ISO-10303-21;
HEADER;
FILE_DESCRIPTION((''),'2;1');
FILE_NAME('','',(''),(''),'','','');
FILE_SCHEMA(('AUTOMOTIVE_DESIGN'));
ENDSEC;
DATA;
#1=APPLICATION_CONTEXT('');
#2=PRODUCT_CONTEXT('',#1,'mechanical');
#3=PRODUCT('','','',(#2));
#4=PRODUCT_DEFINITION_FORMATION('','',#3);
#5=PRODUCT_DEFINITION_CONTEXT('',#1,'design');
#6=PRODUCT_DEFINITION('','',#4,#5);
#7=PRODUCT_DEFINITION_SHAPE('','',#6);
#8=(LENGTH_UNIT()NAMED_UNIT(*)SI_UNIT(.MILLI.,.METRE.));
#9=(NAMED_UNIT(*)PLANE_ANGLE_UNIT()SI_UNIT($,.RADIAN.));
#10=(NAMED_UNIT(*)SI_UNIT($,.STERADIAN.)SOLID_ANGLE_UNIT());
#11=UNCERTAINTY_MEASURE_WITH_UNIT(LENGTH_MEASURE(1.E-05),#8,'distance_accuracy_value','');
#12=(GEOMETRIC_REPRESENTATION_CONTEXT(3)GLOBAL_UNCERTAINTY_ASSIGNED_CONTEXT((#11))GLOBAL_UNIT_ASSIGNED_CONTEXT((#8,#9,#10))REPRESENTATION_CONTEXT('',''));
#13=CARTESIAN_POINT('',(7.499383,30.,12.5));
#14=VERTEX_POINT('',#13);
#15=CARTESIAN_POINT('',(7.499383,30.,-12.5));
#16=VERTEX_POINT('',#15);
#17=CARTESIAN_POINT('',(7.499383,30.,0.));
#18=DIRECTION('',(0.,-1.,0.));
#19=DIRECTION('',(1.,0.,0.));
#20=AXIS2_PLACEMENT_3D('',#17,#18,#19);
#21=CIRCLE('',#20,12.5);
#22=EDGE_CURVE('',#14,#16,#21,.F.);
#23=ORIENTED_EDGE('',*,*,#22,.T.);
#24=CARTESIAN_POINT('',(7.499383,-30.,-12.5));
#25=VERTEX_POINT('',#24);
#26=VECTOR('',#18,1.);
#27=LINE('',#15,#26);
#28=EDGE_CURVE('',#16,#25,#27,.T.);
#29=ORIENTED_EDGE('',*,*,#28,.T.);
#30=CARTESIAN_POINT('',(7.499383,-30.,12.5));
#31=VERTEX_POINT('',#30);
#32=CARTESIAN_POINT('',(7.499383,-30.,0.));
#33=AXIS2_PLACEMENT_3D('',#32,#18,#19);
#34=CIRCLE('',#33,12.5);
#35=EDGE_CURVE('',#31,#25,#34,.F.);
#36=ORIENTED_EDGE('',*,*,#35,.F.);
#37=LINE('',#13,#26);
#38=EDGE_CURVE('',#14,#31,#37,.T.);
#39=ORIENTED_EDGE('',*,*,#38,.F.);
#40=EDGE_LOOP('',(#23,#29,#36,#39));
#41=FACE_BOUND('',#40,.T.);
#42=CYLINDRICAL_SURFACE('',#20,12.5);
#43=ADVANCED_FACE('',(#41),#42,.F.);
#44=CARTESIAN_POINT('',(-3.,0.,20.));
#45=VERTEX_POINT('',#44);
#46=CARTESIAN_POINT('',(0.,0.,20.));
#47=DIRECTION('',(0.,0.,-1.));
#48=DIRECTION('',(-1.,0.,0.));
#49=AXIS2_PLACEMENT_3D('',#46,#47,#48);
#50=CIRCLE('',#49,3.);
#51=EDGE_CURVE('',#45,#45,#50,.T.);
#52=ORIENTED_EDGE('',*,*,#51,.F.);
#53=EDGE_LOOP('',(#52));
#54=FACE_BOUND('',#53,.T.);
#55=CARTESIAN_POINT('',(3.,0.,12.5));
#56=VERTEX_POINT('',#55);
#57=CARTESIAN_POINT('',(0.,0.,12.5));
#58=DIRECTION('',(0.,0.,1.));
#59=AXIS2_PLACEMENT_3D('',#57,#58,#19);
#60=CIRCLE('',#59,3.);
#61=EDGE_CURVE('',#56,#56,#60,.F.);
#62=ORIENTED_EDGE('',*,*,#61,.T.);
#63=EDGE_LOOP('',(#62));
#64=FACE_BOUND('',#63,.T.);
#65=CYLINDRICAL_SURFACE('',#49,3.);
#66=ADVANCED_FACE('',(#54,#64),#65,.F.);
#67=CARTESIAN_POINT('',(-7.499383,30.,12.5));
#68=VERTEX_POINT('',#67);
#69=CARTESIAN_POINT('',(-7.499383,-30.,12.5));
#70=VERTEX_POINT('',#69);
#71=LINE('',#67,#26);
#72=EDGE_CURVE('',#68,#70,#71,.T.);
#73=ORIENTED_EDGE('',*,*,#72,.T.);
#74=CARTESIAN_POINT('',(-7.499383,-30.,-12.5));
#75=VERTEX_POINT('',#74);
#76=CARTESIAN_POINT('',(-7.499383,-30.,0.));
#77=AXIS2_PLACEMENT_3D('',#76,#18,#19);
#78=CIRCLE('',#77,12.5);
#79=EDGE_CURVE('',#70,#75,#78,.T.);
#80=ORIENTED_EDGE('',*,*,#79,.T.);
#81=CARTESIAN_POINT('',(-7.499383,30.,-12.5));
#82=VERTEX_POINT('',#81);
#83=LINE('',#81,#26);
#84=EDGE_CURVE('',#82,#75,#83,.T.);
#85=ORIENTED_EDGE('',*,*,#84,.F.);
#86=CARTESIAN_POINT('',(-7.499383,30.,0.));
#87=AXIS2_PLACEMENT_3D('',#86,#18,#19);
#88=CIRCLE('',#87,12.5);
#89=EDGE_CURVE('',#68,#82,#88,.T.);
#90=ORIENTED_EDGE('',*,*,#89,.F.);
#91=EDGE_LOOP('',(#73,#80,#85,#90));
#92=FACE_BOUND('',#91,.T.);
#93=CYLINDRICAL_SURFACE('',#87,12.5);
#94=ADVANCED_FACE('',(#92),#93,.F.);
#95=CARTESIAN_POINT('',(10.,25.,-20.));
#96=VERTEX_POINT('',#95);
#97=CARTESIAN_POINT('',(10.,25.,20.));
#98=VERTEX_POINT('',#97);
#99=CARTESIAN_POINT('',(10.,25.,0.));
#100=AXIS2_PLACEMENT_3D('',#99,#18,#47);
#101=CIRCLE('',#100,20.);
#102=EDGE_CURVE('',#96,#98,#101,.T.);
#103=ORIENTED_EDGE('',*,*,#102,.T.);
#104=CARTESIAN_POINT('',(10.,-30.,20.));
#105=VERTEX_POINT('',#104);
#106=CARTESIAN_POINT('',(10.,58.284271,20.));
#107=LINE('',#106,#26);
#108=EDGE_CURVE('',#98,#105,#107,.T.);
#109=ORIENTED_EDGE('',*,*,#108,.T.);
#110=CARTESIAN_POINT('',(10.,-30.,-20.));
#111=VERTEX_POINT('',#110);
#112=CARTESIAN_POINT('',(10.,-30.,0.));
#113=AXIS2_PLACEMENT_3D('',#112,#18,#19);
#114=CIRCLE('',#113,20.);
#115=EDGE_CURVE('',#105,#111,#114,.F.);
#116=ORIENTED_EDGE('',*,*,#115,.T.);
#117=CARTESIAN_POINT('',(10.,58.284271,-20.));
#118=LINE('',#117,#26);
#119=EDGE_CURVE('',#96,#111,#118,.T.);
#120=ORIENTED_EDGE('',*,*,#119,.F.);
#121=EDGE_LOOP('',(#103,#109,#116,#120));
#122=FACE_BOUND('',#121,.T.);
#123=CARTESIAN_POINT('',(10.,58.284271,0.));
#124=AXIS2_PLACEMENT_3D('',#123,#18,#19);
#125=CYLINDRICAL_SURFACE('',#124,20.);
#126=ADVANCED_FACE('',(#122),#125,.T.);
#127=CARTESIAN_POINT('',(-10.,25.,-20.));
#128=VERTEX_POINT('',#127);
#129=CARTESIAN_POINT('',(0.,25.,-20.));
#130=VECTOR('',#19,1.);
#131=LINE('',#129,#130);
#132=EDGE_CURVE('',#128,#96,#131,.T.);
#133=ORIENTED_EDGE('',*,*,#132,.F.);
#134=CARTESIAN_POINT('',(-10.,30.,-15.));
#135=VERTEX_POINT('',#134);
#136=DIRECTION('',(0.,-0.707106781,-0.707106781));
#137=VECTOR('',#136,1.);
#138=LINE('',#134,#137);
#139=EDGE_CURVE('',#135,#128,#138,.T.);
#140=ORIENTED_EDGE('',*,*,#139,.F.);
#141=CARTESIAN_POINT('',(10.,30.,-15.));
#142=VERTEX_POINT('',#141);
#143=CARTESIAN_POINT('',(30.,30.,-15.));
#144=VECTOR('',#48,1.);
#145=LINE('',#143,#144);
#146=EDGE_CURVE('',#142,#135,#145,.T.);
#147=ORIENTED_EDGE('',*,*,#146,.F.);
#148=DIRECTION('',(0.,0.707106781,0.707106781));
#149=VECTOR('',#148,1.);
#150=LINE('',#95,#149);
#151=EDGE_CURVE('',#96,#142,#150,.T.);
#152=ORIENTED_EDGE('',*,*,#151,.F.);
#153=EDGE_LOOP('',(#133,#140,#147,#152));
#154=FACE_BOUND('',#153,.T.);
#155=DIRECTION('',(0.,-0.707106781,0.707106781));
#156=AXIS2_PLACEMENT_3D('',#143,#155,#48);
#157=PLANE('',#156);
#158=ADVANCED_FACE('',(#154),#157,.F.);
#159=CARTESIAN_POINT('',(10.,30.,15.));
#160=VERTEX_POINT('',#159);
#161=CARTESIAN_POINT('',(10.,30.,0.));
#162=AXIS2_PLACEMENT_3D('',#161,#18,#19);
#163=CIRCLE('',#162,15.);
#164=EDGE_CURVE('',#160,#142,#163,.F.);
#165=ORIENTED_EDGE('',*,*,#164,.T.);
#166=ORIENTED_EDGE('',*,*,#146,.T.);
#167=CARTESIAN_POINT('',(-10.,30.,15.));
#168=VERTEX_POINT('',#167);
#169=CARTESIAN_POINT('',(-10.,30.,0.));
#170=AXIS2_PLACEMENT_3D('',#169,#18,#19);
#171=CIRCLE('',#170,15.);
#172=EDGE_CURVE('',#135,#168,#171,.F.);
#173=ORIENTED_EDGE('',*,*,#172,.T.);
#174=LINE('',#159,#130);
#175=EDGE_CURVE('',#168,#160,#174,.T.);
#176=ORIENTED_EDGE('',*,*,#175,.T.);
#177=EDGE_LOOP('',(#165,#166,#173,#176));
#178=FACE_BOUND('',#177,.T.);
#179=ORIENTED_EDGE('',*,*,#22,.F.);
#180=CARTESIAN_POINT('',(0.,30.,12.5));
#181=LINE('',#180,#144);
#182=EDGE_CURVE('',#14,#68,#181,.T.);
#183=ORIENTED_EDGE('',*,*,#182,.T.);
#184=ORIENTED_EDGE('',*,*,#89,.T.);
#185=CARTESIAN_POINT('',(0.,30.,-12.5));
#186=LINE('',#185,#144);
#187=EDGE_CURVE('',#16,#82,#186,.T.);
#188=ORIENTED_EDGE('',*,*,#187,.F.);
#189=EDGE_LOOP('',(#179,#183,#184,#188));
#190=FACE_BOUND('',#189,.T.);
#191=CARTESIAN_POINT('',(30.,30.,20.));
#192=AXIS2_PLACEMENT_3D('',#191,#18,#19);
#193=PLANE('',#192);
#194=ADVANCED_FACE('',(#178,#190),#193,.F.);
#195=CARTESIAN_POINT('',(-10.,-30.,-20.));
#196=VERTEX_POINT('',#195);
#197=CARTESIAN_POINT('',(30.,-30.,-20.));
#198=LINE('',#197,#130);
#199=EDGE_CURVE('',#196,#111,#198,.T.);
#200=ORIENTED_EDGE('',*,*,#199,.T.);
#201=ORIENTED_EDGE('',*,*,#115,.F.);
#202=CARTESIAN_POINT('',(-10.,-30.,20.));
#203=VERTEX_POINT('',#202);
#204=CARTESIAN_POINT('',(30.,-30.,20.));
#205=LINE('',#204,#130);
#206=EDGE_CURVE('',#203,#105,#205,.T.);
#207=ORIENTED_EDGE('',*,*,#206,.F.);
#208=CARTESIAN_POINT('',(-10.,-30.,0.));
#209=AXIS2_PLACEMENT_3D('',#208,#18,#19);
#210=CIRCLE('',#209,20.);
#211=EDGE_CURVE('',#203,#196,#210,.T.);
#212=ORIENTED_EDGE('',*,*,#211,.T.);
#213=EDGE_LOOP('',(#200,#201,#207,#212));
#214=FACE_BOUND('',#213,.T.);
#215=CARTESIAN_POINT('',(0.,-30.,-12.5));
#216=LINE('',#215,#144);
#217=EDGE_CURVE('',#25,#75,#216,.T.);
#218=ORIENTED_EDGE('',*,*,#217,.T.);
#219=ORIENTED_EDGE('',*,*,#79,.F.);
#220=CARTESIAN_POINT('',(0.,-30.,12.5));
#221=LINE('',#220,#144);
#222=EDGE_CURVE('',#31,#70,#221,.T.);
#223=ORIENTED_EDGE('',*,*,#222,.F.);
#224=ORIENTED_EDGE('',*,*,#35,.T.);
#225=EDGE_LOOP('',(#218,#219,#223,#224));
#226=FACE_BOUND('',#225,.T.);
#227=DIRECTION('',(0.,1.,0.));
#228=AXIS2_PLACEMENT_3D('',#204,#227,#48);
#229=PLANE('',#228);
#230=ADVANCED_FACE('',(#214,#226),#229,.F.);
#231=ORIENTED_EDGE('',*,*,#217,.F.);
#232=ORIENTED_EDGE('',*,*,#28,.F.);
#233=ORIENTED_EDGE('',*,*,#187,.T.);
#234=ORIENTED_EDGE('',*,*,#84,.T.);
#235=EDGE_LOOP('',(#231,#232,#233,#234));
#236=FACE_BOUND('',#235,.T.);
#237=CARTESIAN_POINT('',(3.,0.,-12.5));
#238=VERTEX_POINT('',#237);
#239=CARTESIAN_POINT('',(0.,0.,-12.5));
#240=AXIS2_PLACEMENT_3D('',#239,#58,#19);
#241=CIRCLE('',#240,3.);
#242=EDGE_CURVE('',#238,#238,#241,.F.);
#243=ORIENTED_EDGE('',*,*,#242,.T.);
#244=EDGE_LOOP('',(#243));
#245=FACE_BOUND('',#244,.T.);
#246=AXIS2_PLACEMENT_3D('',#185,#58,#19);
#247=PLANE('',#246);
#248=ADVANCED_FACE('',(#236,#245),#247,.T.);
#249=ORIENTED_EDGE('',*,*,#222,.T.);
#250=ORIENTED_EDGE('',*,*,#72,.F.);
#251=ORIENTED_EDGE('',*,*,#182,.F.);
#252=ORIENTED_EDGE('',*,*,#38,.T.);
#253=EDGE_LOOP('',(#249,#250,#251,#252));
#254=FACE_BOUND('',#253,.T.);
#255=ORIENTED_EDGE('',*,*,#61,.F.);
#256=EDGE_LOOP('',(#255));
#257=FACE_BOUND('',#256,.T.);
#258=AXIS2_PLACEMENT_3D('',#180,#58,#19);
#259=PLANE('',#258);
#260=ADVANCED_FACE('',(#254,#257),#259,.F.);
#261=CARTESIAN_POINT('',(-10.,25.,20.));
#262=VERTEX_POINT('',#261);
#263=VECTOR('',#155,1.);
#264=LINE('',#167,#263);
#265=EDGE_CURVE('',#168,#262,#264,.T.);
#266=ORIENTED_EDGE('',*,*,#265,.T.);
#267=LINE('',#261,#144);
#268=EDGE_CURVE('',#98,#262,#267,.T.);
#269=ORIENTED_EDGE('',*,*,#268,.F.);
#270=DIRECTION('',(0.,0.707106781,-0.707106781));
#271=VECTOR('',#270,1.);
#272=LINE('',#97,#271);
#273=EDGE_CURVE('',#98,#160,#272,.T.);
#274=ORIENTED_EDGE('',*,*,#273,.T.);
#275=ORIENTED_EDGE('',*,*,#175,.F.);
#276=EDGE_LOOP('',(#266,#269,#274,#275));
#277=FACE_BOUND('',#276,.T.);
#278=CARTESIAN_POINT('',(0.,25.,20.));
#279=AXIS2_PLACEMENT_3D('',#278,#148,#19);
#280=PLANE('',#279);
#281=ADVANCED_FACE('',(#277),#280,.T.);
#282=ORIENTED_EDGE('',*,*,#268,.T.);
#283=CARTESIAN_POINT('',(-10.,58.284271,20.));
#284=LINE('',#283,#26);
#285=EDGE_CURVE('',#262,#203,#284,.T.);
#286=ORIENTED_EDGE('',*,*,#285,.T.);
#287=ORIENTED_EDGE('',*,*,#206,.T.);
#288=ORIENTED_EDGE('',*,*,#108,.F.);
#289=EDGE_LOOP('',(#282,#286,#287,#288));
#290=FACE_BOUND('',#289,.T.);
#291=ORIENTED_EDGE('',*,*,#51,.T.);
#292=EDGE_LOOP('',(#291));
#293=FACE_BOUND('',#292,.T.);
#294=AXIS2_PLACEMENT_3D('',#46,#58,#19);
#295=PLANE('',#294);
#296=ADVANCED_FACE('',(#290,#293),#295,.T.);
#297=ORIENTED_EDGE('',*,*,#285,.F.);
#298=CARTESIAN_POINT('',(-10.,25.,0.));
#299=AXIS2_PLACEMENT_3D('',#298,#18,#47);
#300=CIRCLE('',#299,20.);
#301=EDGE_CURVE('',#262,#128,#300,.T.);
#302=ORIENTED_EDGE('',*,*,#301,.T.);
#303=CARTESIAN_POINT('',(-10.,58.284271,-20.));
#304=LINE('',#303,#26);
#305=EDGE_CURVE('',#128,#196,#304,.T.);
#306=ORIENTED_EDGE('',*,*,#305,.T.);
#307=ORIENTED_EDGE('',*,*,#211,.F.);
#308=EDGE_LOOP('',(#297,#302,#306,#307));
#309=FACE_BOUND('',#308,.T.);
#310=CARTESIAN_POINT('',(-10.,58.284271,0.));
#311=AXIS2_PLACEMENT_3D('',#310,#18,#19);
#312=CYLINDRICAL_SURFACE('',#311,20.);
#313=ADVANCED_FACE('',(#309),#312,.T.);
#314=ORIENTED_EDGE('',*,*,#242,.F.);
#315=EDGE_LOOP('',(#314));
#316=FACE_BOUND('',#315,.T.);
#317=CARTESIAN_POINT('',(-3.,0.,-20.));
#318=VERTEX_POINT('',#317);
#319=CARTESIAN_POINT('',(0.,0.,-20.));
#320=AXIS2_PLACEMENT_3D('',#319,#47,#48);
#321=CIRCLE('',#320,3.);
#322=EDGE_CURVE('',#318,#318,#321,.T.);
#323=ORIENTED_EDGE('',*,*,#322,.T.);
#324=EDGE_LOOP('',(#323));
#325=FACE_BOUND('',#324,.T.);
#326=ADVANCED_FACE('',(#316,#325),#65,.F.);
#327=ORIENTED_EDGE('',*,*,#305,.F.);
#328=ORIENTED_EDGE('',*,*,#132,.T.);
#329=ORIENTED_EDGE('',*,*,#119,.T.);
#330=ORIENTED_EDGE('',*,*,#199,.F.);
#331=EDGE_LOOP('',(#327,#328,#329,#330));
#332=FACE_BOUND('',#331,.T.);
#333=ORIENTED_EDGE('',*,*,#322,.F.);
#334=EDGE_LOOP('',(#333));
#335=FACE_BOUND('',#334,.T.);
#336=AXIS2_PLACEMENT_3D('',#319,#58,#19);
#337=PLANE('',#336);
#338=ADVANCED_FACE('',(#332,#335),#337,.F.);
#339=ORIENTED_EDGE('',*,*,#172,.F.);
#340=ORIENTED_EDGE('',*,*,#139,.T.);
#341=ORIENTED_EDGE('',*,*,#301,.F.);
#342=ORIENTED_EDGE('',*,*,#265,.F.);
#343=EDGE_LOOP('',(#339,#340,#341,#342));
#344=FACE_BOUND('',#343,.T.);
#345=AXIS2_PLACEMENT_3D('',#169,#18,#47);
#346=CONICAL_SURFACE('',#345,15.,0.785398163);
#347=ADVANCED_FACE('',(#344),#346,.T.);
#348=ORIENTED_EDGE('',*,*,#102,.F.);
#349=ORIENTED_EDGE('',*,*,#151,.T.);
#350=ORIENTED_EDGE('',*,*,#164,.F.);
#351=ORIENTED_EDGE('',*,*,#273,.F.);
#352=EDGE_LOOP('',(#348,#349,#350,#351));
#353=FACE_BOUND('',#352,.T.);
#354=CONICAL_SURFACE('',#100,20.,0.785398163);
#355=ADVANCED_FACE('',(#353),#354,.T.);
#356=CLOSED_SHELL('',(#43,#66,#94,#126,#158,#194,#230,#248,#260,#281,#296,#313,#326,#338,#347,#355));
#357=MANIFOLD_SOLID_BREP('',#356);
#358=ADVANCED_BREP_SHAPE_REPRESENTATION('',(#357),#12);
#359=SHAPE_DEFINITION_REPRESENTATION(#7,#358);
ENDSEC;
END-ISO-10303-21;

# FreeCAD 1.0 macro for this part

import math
import FreeCAD as App
import Part
import Sketcher
from FreeCAD import Vector
Q = App.Units.Quantity


def edges_at(feature, points):
    """Names of the edges that pass closest to the given points."""
    edges = feature.Shape.Edges
    near = lambda p: min(range(len(edges)), key=lambda i: edges[i].distToShape(Part.Vertex(*p))[0])
    return sorted({f"Edge{near(p) + 1}" for p in points})

doc = App.newDocument("Part")
body = doc.addObject("PartDesign::Body", "Body")

# Sketch on XY plane
sketch1 = doc.addObject("Sketcher::SketchObject", "Sketch")
body.addObject(sketch1)
sketch1.AttachmentSupport = (doc.XY_Plane, [""])
sketch1.MapMode = "FlatFace"
sketch1.addGeometry([
    Part.LineSegment(Vector(-30, 30, 0), Vector(-30, -30, 0)),
    Part.LineSegment(Vector(-30, -30, 0), Vector(30, -30, 0)),
    Part.LineSegment(Vector(30, -30, 0), Vector(30, 30, 0)),
    Part.LineSegment(Vector(30, 30, 0), Vector(-30, 30, 0)),
], False)
sketch1.addConstraint([
    Sketcher.Constraint("Coincident", 0, 2, 1, 1),
    Sketcher.Constraint("Coincident", 1, 2, 2, 1),
    Sketcher.Constraint("Coincident", 2, 2, 3, 1),
    Sketcher.Constraint("Coincident", 3, 2, 0, 1),
    Sketcher.Constraint("Vertical", 0),
    Sketcher.Constraint("Horizontal", 1),
    Sketcher.Constraint("Vertical", 2),
    Sketcher.Constraint("Horizontal", 3),
    Sketcher.Constraint("Symmetric", 0, 2, 2, 2, -1, 1),
    Sketcher.Constraint("Equal", 3, 0),
    Sketcher.Constraint("DistanceX", 1, 1, 1, 2, Q("60 mm")),
])
pad1 = doc.addObject("PartDesign::Pad", "Pad")
body.addObject(pad1)
pad1.Profile = sketch1
pad1.Length = 40
pad1.Midplane = True

# Sketch on XZ plane
sketch2 = doc.addObject("Sketcher::SketchObject", "Sketch001")
body.addObject(sketch2)
sketch2.AttachmentSupport = (doc.XZ_Plane, [""])
sketch2.MapMode = "FlatFace"
sketch2.AttachmentOffset = App.Placement(Vector(0, 0, 30), App.Rotation())
sketch2.addGeometry([
    Part.ArcOfCircle(Part.Circle(Vector(10, 0, 0), Vector(0, 0, 1), 20), math.radians(-90), math.radians(0)),  # 0
    Part.LineSegment(Vector(10, -20, 0), Vector(30, -20, 0)),  # 1
    Part.LineSegment(Vector(30, -20, 0), Vector(30, 0, 0)),  # 2
    Part.LineSegment(Vector(30, 20, 0), Vector(10, 20, 0)),  # 3
    Part.ArcOfCircle(Part.Circle(Vector(10, 0, 0), Vector(0, 0, 1), 20), math.radians(0), math.radians(90)),  # 4
    Part.LineSegment(Vector(30, 0, 0), Vector(30, 20, 0)),  # 5
    Part.ArcOfCircle(Part.Circle(Vector(-10, 0, 0), Vector(0, 0, 1), 20), math.radians(90), math.radians(180)),  # 6
    Part.LineSegment(Vector(-10, 20, 0), Vector(-30, 20, 0)),  # 7
    Part.LineSegment(Vector(-30, 20, 0), Vector(-30, 0, 0)),  # 8
    Part.LineSegment(Vector(-30, -20, 0), Vector(-10, -20, 0)),  # 9
    Part.ArcOfCircle(Part.Circle(Vector(-10, 0, 0), Vector(0, 0, 1), 20), math.radians(-180), math.radians(-90)),  # 10
    Part.LineSegment(Vector(-30, 0, 0), Vector(-30, -20, 0)),  # 11
], False)
sketch2.addConstraint([
    Sketcher.Constraint("Tangent", 0, 1, 1, 1),
    Sketcher.Constraint("Coincident", 1, 2, 2, 1),
    Sketcher.Constraint("Tangent", 2, 2, 0, 2),
    Sketcher.Constraint("Tangent", 3, 2, 4, 2),
    Sketcher.Constraint("Tangent", 4, 1, 5, 1),
    Sketcher.Constraint("Coincident", 5, 2, 3, 1),
    Sketcher.Constraint("Tangent", 6, 1, 7, 1),
    Sketcher.Constraint("Coincident", 7, 2, 8, 1),
    Sketcher.Constraint("Tangent", 8, 2, 6, 2),
    Sketcher.Constraint("Tangent", 9, 2, 10, 2),
    Sketcher.Constraint("Tangent", 10, 1, 11, 1),
    Sketcher.Constraint("Coincident", 11, 2, 9, 1),
    Sketcher.Constraint("Horizontal", 1),
    Sketcher.Constraint("Vertical", 2),
    Sketcher.Constraint("Horizontal", 3),
    Sketcher.Constraint("Vertical", 5),
    Sketcher.Constraint("Horizontal", 7),
    Sketcher.Constraint("Vertical", 8),
    Sketcher.Constraint("Horizontal", 9),
    Sketcher.Constraint("Vertical", 11),
    Sketcher.Constraint("Coincident", 4, 3, 0, 3),
    Sketcher.Constraint("Coincident", 10, 3, 6, 3),
    Sketcher.Constraint("Equal", 0, 4),
    Sketcher.Constraint("Equal", 4, 6),
    Sketcher.Constraint("Equal", 6, 10),
    Sketcher.Constraint("Symmetric", 0, 3, 6, 3, -1, 1),
    Sketcher.Constraint("PointOnObject", 0, 3, -1),
    Sketcher.Constraint("Radius", 0, Q("20 mm")),
    Sketcher.Constraint("DistanceX", -1, 1, 0, 3, Q("10 mm")),
])
pocket1 = doc.addObject("PartDesign::Pocket", "Pocket")
body.addObject(pocket1)
pocket1.Profile = sketch2
pocket1.Length = 60
doc.recompute()

chamfer = doc.addObject("PartDesign::Chamfer", "Chamfer")
body.addObject(chamfer)
chamfer.Base = (pocket1, edges_at(pocket1, [
    (0, 30, -20),
    (24.142, 30, 14.142),
    (-24.142, 30, -14.142),
    (0, 30, 20),
]))
chamfer.Size = 5

# Sketch on XY plane
sketch3 = doc.addObject("Sketcher::SketchObject", "Sketch002")
body.addObject(sketch3)
sketch3.AttachmentSupport = (doc.XY_Plane, [""])
sketch3.MapMode = "FlatFace"
sketch3.AttachmentOffset = App.Placement(Vector(0, 0, -20), App.Rotation())
sketch3.addGeometry(Part.Circle(Vector(0, 0, 0), Vector(0, 0, 1), 3), False)
sketch3.addConstraint([
    Sketcher.Constraint("Coincident", 0, 3, -1, 1),
    Sketcher.Constraint("Diameter", 0, Q("6 mm")),
])
pocket2 = doc.addObject("PartDesign::Pocket", "Pocket001")
body.addObject(pocket2)
pocket2.Profile = sketch3
pocket2.Type = "ThroughAll"
pocket2.Reversed = True

# Sketch on XZ plane
sketch4 = doc.addObject("Sketcher::SketchObject", "Sketch003")
body.addObject(sketch4)
sketch4.AttachmentSupport = (doc.XZ_Plane, [""])
sketch4.MapMode = "FlatFace"
sketch4.AttachmentOffset = App.Placement(Vector(0, 0, 30), App.Rotation())
sketch4.addGeometry([
    Part.ArcOfCircle(Part.Circle(Vector(7, 0, 0), Vector(0, 0, 1), 12), math.radians(-90), math.radians(90)),
    Part.LineSegment(Vector(7, 12, 0), Vector(-7, 12, 0)),
    Part.ArcOfCircle(Part.Circle(Vector(-7, 0, 0), Vector(0, 0, 1), 12), math.radians(90), math.radians(270)),
    Part.LineSegment(Vector(-7, -12, 0), Vector(7, -12, 0)),
], False)
sketch4.addConstraint([
    Sketcher.Constraint("Tangent", 0, 2, 1, 1),
    Sketcher.Constraint("Tangent", 1, 2, 2, 1),
    Sketcher.Constraint("Tangent", 2, 2, 3, 1),
    Sketcher.Constraint("Tangent", 3, 2, 0, 1),
    Sketcher.Constraint("Horizontal", 1),
    Sketcher.Constraint("Horizontal", 3),
    Sketcher.Constraint("Symmetric", 0, 3, 2, 3, -1, 1),
    Sketcher.Constraint("Radius", 0, Q("12.5 mm")),
    Sketcher.Constraint("DistanceX", 1, 2, 1, 1, Q("14.998765 mm")),
])
pocket3 = doc.addObject("PartDesign::Pocket", "Pocket002")
body.addObject(pocket3)
pocket3.Profile = sketch4
pocket3.Type = "ThroughAll"

doc.recompute()
